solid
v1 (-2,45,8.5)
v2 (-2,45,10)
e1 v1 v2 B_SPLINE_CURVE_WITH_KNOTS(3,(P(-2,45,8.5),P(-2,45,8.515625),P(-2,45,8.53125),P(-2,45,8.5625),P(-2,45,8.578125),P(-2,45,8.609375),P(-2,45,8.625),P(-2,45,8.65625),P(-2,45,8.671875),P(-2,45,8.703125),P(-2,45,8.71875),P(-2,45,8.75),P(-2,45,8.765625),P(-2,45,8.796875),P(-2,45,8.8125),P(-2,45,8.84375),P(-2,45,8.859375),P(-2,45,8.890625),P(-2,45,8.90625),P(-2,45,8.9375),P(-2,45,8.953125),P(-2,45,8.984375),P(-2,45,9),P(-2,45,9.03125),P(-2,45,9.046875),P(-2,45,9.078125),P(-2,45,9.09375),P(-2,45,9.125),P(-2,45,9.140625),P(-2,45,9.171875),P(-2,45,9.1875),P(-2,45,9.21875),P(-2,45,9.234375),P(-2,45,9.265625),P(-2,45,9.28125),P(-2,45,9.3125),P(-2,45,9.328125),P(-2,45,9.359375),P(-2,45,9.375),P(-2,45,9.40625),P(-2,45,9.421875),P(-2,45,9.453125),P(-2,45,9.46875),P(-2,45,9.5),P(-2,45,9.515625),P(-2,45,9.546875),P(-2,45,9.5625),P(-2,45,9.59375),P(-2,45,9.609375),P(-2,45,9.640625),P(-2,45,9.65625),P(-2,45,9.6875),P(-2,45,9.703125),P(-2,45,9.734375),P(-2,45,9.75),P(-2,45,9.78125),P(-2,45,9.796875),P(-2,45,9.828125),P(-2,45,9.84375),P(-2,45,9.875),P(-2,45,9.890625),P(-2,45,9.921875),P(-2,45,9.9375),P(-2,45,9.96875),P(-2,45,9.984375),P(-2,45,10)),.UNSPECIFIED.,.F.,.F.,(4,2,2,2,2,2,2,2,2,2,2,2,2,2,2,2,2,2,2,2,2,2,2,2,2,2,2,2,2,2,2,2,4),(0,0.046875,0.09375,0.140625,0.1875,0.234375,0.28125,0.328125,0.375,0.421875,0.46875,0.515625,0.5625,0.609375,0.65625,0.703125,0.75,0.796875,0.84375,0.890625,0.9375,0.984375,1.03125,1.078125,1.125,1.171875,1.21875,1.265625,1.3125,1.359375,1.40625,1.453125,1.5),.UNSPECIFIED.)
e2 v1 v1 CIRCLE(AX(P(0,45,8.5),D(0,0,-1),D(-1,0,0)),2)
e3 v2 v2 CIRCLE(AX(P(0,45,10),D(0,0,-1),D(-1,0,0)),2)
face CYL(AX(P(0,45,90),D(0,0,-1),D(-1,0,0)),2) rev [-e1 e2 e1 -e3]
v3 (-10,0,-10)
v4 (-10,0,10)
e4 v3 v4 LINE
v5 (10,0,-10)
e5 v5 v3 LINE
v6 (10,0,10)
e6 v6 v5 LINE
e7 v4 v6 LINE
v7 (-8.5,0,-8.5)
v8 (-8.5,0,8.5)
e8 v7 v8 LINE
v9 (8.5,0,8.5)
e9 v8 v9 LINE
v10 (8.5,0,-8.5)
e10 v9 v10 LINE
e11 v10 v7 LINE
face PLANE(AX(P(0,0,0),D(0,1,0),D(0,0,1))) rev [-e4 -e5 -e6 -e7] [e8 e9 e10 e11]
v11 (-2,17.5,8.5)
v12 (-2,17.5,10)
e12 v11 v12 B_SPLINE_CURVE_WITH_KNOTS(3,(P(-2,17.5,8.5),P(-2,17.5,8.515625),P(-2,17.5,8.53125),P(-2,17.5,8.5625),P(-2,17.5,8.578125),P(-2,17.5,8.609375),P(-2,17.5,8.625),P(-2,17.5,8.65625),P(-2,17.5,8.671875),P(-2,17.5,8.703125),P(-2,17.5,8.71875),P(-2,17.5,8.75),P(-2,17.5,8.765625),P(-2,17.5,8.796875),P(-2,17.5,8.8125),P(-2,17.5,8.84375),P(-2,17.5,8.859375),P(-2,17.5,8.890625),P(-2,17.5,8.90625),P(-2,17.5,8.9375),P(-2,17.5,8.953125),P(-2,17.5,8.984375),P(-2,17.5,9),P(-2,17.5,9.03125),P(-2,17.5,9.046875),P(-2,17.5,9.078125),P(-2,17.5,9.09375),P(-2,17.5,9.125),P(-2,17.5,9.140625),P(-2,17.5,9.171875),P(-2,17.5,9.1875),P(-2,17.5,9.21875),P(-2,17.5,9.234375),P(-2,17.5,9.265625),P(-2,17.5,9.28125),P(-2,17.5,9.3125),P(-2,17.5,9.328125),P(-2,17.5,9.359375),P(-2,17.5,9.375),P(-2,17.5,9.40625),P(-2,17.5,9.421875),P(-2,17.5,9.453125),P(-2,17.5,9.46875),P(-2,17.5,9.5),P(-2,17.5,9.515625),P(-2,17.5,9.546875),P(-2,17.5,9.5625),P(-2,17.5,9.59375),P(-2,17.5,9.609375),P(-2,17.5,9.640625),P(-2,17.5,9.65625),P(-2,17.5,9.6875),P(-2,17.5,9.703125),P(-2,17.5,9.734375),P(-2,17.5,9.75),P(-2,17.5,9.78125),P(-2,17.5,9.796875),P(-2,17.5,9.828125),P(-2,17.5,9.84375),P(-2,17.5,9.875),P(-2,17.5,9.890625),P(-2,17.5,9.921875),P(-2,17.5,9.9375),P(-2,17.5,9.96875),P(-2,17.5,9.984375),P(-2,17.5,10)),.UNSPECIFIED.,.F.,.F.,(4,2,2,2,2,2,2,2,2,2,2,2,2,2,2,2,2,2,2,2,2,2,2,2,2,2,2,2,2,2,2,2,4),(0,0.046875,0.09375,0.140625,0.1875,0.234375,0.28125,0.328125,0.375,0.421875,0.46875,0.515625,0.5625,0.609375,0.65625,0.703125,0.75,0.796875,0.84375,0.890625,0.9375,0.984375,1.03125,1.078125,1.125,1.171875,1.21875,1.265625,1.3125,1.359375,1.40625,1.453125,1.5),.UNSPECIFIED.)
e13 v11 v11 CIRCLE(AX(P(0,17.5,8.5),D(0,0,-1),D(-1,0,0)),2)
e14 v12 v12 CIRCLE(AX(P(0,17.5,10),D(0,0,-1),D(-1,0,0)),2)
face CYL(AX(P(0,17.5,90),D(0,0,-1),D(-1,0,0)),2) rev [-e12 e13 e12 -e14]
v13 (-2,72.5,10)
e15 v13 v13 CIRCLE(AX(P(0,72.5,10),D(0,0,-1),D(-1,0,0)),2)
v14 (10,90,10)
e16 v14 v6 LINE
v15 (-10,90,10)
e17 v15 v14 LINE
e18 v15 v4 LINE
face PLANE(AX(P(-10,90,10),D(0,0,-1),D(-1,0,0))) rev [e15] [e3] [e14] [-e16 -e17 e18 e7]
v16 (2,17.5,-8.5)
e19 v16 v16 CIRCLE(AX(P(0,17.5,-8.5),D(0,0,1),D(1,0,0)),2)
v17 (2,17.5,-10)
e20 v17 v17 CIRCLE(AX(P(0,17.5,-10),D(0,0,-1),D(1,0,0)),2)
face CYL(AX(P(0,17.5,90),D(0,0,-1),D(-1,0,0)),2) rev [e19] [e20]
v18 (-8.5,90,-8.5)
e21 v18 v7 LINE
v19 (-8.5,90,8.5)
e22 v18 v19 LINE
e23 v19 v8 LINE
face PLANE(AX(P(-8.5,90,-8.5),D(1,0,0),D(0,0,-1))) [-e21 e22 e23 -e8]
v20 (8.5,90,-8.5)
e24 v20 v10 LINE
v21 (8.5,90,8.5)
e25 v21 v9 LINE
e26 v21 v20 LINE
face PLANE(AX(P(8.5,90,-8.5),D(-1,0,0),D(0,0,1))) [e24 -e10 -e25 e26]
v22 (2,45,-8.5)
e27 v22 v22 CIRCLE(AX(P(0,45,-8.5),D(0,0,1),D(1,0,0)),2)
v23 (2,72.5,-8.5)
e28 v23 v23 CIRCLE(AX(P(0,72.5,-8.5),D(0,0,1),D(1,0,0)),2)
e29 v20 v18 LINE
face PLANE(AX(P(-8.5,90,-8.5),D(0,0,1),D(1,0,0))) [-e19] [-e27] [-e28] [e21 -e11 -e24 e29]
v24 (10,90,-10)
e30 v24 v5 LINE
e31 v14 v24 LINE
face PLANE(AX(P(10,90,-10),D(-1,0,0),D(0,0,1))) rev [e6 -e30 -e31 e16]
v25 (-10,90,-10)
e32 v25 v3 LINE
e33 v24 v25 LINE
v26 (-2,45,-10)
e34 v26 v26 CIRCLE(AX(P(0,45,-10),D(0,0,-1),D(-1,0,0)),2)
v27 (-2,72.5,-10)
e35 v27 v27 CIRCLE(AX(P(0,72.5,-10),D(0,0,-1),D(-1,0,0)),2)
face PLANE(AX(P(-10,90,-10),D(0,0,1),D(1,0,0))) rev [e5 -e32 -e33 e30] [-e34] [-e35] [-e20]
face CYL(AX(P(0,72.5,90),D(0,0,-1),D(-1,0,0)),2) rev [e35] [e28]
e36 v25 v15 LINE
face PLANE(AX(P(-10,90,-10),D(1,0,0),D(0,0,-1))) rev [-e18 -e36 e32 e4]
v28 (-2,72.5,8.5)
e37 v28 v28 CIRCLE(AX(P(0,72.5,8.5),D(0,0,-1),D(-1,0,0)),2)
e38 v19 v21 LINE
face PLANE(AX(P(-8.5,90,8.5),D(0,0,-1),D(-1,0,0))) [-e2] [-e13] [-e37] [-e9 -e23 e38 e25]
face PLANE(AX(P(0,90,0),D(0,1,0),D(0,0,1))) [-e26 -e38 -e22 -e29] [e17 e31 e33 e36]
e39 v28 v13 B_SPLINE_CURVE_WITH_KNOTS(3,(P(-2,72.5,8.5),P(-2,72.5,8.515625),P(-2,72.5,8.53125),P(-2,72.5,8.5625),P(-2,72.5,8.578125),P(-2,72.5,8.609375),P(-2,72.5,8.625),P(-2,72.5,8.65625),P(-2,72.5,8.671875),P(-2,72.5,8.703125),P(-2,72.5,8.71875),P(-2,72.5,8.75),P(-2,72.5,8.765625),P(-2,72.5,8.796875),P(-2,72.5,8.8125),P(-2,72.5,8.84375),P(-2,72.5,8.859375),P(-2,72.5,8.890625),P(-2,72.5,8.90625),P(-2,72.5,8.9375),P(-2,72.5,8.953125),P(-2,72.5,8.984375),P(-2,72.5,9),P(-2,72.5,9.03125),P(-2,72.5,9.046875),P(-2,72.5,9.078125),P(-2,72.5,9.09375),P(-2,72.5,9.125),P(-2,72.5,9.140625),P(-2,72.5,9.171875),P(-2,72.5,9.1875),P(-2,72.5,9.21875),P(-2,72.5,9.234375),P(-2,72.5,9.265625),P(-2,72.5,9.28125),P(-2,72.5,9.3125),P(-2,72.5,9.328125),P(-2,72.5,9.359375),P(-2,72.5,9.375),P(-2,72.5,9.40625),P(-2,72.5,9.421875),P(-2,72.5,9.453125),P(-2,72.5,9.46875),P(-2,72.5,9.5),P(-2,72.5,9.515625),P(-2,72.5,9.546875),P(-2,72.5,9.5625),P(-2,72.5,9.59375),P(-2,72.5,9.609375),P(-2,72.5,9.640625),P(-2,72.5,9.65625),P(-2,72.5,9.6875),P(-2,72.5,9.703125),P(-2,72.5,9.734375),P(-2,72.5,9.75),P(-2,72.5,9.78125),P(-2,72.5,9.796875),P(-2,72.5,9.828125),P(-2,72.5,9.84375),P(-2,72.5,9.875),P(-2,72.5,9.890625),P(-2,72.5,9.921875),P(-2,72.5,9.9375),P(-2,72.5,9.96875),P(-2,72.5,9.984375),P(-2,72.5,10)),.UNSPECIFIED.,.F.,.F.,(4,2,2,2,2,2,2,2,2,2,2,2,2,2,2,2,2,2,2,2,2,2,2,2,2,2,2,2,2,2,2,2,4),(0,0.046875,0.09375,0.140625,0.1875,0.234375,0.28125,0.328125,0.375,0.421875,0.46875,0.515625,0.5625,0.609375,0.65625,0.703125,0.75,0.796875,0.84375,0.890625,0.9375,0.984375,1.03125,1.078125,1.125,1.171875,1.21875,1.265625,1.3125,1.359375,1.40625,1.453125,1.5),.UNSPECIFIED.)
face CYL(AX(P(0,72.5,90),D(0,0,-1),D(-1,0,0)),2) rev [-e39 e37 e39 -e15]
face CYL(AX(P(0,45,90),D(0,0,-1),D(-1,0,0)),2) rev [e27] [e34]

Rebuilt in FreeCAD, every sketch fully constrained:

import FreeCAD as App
import Part
import Sketcher
from FreeCAD import Vector
Q = App.Units.Quantity


def add_polygon(sketch, points):
    """Adds a closed chain of lines whose ends are joined by coincident constraints."""
    first, n = sketch.GeometryCount, len(points)
    for a, b in zip(points, points[1:] + points[:1]):
        sketch.addGeometry(Part.LineSegment(App.Vector(*a, 0), App.Vector(*b, 0)), False)
    for i in range(n):
        sketch.addConstraint(Sketcher.Constraint("Coincident", first + i, 2, first + (i + 1) % n, 1))

doc = App.newDocument("Part")
body = doc.addObject("PartDesign::Body", "Body")

# Sketch on XZ plane
sketch1 = body.newObject("Sketcher::SketchObject", "Sketch")
sketch1.AttachmentSupport = (doc.getObject("XZ_Plane"), [""])
sketch1.MapMode = "FlatFace"
add_polygon(sketch1, [(-10, -10), (-10, 10), (10, 10), (10, -10)])  # lines 0-3
add_polygon(sketch1, [(8, 8), (-8, 8), (-8, -8), (8, -8)])  # lines 4-7
sketch1.addConstraint([
    Sketcher.Constraint("Vertical", 0),
    Sketcher.Constraint("Horizontal", 1),
    Sketcher.Constraint("Vertical", 2),
    Sketcher.Constraint("Horizontal", 3),
    Sketcher.Constraint("Horizontal", 4),
    Sketcher.Constraint("Vertical", 5),
    Sketcher.Constraint("Horizontal", 6),
    Sketcher.Constraint("Vertical", 7),
    Sketcher.Constraint("Symmetric", 0, 2, 2, 2, -1, 1),
    Sketcher.Constraint("Symmetric", 4, 2, 6, 2, -1, 1),
    Sketcher.Constraint("Equal", 3, 0),
    Sketcher.Constraint("Equal", 6, 5),
    Sketcher.Constraint("DistanceX", 1, 1, 1, 2, Q("20 mm")),
    Sketcher.Constraint("DistanceX", 4, 2, 4, 1, Q("17 mm")),
])
pad1 = body.newObject("PartDesign::Pad", "Pad")
pad1.Profile = sketch1
pad1.Length = 90
pad1.Reversed = True

# Sketch on XY plane
sketch2 = body.newObject("Sketcher::SketchObject", "Sketch001")
sketch2.AttachmentSupport = (doc.getObject("XY_Plane"), [""])
sketch2.MapMode = "FlatFace"
sketch2.AttachmentOffset = App.Placement(Vector(0, 0, -10), App.Rotation())
sketch2.addGeometry([
    Part.Circle(Vector(0, 72.5, 0), Vector(0, 0, 1), 2),
    Part.Circle(Vector(0, 17.5, 0), Vector(0, 0, 1), 2),
    Part.Circle(Vector(0, 45, 0), Vector(0, 0, 1), 2),
], False)
sketch2.addConstraint([
    Sketcher.Constraint("Equal", 0, 1),
    Sketcher.Constraint("Equal", 1, 2),
    Sketcher.Constraint("PointOnObject", 0, 3, -2),
    Sketcher.Constraint("PointOnObject", 1, 3, -2),
    Sketcher.Constraint("PointOnObject", 2, 3, -2),
    Sketcher.Constraint("Diameter", 0, Q("4 mm")),
    Sketcher.Constraint("DistanceY", -1, 1, 2, 3, Q("45 mm")),
    Sketcher.Constraint("DistanceY", 1, 3, 0, 3, Q("55 mm")),
    Sketcher.Constraint("DistanceY", -1, 1, 0, 3, Q("72.5 mm")),
])
pocket1 = body.newObject("PartDesign::Pocket", "Pocket")
pocket1.Profile = sketch2
pocket1.Length = 100
pocket1.Reversed = True

doc.recompute()
